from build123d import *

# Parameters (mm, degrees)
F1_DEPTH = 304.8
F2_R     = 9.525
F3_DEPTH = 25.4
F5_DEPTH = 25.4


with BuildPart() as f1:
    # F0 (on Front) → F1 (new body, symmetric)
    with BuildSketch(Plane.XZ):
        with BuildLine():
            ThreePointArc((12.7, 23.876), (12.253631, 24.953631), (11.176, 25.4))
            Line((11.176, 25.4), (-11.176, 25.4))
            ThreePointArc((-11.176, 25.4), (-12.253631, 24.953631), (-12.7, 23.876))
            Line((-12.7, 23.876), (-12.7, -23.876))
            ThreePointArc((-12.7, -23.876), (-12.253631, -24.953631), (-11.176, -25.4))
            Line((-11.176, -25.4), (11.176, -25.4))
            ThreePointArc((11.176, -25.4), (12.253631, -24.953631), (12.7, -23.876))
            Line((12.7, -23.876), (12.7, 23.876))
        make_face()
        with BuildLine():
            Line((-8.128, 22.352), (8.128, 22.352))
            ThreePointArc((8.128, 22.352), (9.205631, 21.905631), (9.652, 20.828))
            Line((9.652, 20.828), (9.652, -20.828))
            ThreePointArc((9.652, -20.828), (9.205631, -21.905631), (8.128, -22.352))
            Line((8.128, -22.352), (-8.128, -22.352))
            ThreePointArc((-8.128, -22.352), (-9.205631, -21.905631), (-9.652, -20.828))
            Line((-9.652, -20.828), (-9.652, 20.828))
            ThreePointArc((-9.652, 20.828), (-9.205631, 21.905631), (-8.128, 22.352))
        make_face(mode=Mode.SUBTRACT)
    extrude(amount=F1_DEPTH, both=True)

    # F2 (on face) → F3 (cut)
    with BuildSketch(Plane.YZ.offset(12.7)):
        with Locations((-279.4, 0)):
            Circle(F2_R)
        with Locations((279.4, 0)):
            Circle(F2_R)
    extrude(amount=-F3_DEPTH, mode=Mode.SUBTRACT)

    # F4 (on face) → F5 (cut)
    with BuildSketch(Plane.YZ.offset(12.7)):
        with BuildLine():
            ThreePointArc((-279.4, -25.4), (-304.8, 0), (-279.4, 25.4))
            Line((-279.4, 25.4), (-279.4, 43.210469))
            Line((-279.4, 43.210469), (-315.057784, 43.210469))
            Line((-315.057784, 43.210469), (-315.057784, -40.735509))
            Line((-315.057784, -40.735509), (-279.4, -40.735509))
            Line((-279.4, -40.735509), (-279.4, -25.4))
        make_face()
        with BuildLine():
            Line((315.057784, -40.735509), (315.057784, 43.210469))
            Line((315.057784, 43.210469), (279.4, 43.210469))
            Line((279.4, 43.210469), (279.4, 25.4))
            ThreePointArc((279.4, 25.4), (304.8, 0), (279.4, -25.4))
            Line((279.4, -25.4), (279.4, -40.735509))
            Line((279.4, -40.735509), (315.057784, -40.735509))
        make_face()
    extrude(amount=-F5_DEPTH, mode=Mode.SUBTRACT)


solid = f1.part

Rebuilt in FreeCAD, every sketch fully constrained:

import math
import FreeCAD as App
import Part
import Sketcher
Q = App.Units.Quantity

doc = App.newDocument("Part")
body = doc.addObject("PartDesign::Body", "Body")

sketch1 = doc.addObject("Sketcher::SketchObject", "Sketch")
body.addObject(sketch1)
sketch1.AttachmentSupport = (doc.XZ_Plane, [""])
sketch1.MapMode = "FlatFace"
sketch1.addGeometry(Part.ArcOfCircle(Part.Circle(App.Vector(11.2, 23.9, 0), App.Vector(0, 0, 1), 1.5), math.radians(0), math.radians(90)), False)
sketch1.addGeometry(Part.LineSegment(App.Vector(11.2, 25.4, 0), App.Vector(-11.2, 25.4, 0)), False)
sketch1.addGeometry(Part.ArcOfCircle(Part.Circle(App.Vector(-11.2, 23.9, 0), App.Vector(0, 0, 1), 1.5), math.radians(90), math.radians(180)), False)
sketch1.addGeometry(Part.LineSegment(App.Vector(-12.7, 23.9, 0), App.Vector(-12.7, -23.9, 0)), False)
sketch1.addGeometry(Part.ArcOfCircle(Part.Circle(App.Vector(-11.2, -23.9, 0), App.Vector(0, 0, 1), 1.5), math.radians(180), math.radians(270)), False)
sketch1.addGeometry(Part.LineSegment(App.Vector(-11.2, -25.4, 0), App.Vector(11.2, -25.4, 0)), False)
sketch1.addGeometry(Part.ArcOfCircle(Part.Circle(App.Vector(11.2, -23.9, 0), App.Vector(0, 0, 1), 1.5), math.radians(-90), math.radians(0)), False)
sketch1.addGeometry(Part.LineSegment(App.Vector(12.7, -23.9, 0), App.Vector(12.7, 23.9, 0)), False)
sketch1.addGeometry(Part.ArcOfCircle(Part.Circle(App.Vector(-8.1, 20.8, 0), App.Vector(0, 0, 1), 1.5), math.radians(90), math.radians(180)), False)
sketch1.addGeometry(Part.LineSegment(App.Vector(-8.1, 22.4, 0), App.Vector(8.1, 22.4, 0)), False)
sketch1.addGeometry(Part.ArcOfCircle(Part.Circle(App.Vector(8.1, 20.8, 0), App.Vector(0, 0, 1), 1.5), math.radians(0), math.radians(90)), False)
sketch1.addGeometry(Part.LineSegment(App.Vector(9.7, 20.8, 0), App.Vector(9.7, -20.8, 0)), False)
sketch1.addGeometry(Part.ArcOfCircle(Part.Circle(App.Vector(8.1, -20.8, 0), App.Vector(0, 0, 1), 1.5), math.radians(-90), math.radians(0)), False)
sketch1.addGeometry(Part.LineSegment(App.Vector(8.1, -22.4, 0), App.Vector(-8.1, -22.4, 0)), False)
sketch1.addGeometry(Part.ArcOfCircle(Part.Circle(App.Vector(-8.1, -20.8, 0), App.Vector(0, 0, 1), 1.5), math.radians(180), math.radians(270)), False)
sketch1.addGeometry(Part.LineSegment(App.Vector(-9.7, -20.8, 0), App.Vector(-9.7, 20.8, 0)), False)
sketch1.addConstraint(Sketcher.Constraint("Tangent", 0, 2, 1, 1))
sketch1.addConstraint(Sketcher.Constraint("Tangent", 1, 2, 2, 1))
sketch1.addConstraint(Sketcher.Constraint("Tangent", 2, 2, 3, 1))
sketch1.addConstraint(Sketcher.Constraint("Tangent", 3, 2, 4, 1))
sketch1.addConstraint(Sketcher.Constraint("Tangent", 4, 2, 5, 1))
sketch1.addConstraint(Sketcher.Constraint("Tangent", 5, 2, 6, 1))
sketch1.addConstraint(Sketcher.Constraint("Tangent", 6, 2, 7, 1))
sketch1.addConstraint(Sketcher.Constraint("Tangent", 7, 2, 0, 1))
sketch1.addConstraint(Sketcher.Constraint("Tangent", 8, 1, 9, 1))
sketch1.addConstraint(Sketcher.Constraint("Tangent", 9, 2, 10, 2))
sketch1.addConstraint(Sketcher.Constraint("Tangent", 10, 1, 11, 1))
sketch1.addConstraint(Sketcher.Constraint("Tangent", 11, 2, 12, 2))
sketch1.addConstraint(Sketcher.Constraint("Tangent", 12, 1, 13, 1))
sketch1.addConstraint(Sketcher.Constraint("Tangent", 13, 2, 14, 2))
sketch1.addConstraint(Sketcher.Constraint("Tangent", 14, 1, 15, 1))
sketch1.addConstraint(Sketcher.Constraint("Tangent", 15, 2, 8, 2))
sketch1.addConstraint(Sketcher.Constraint("Horizontal", 1))
sketch1.addConstraint(Sketcher.Constraint("Vertical", 3))
sketch1.addConstraint(Sketcher.Constraint("Horizontal", 5))
sketch1.addConstraint(Sketcher.Constraint("Vertical", 7))
sketch1.addConstraint(Sketcher.Constraint("Horizontal", 9))
sketch1.addConstraint(Sketcher.Constraint("Vertical", 11))
sketch1.addConstraint(Sketcher.Constraint("Horizontal", 13))
sketch1.addConstraint(Sketcher.Constraint("Vertical", 15))
sketch1.addConstraint(Sketcher.Constraint("Equal", 0, 2))
sketch1.addConstraint(Sketcher.Constraint("Equal", 2, 4))
sketch1.addConstraint(Sketcher.Constraint("Equal", 4, 6))
sketch1.addConstraint(Sketcher.Constraint("Equal", 6, 8))
sketch1.addConstraint(Sketcher.Constraint("Equal", 8, 10))
sketch1.addConstraint(Sketcher.Constraint("Equal", 10, 12))
sketch1.addConstraint(Sketcher.Constraint("Equal", 12, 14))
sketch1.addConstraint(Sketcher.Constraint("Symmetric", 0, 3, 4, 3, -1, 1))
sketch1.addConstraint(Sketcher.Constraint("Symmetric", 8, 3, 12, 3, -1, 1))
sketch1.addConstraint(Sketcher.Constraint("Radius", 0, Q("0.06 in")))
sketch1.addConstraint(Sketcher.Constraint("DistanceY", -1, 1, 0, 2, Q("1 in")))
sketch1.addConstraint(Sketcher.Constraint("DistanceX", 1, 2, 1, 1, Q("0.88 in")))
sketch1.addConstraint(Sketcher.Constraint("DistanceX", 9, 1, 9, 2, Q("0.64 in")))
sketch1.addConstraint(Sketcher.Constraint("DistanceY", 11, 2, 11, 1, Q("1.64 in")))
pad1 = doc.addObject("PartDesign::Pad", "Pad")
body.addObject(pad1)
pad1.Profile = sketch1
pad1.Length = Q("24 in")
pad1.Midplane = True

sketch2 = doc.addObject("Sketcher::SketchObject", "Sketch001")
body.addObject(sketch2)
sketch2.AttachmentSupport = (doc.YZ_Plane, [""])
sketch2.MapMode = "FlatFace"
sketch2.AttachmentOffset = App.Placement(App.Vector(0, 0, 0.5 * 25.4), App.Rotation())
sketch2.addGeometry(Part.Circle(App.Vector(-279, 0, 0), App.Vector(0, 0, 1), 10), False)
sketch2.addGeometry(Part.Circle(App.Vector(279, 0, 0), App.Vector(0, 0, 1), 10), False)
sketch2.addConstraint(Sketcher.Constraint("Equal", 0, 1))
sketch2.addConstraint(Sketcher.Constraint("Symmetric", 0, 3, 1, 3, -1, 1))
sketch2.addConstraint(Sketcher.Constraint("PointOnObject", 0, 3, -1))
sketch2.addConstraint(Sketcher.Constraint("Diameter", 0, Q("0.75 in")))
sketch2.addConstraint(Sketcher.Constraint("DistanceX", 0, 3, -1, 1, Q("11 in")))
pocket1 = doc.addObject("PartDesign::Pocket", "Pocket")
body.addObject(pocket1)
pocket1.Profile = sketch2
pocket1.Length = Q("1 in")

sketch3 = doc.addObject("Sketcher::SketchObject", "Sketch002")
body.addObject(sketch3)
sketch3.AttachmentSupport = (doc.YZ_Plane, [""])
sketch3.MapMode = "FlatFace"
sketch3.AttachmentOffset = App.Placement(App.Vector(0, 0, 0.5 * 25.4), App.Rotation())
sketch3.addGeometry(Part.ArcOfCircle(Part.Circle(App.Vector(-279, 0, 0), App.Vector(0, 0, 1), 25), math.radians(90), math.radians(270)), False)
sketch3.addGeometry(Part.LineSegment(App.Vector(-279, 25, 0), App.Vector(-279, 43, 0)), False)
sketch3.addGeometry(Part.LineSegment(App.Vector(-279, 43, 0), App.Vector(-315, 43, 0)), False)
sketch3.addGeometry(Part.LineSegment(App.Vector(-315, 43, 0), App.Vector(-315, -41, 0)), False)
sketch3.addGeometry(Part.LineSegment(App.Vector(-315, -41, 0), App.Vector(-279, -41, 0)), False)
sketch3.addGeometry(Part.LineSegment(App.Vector(-279, -41, 0), App.Vector(-279, -25, 0)), False)
sketch3.addGeometry(Part.LineSegment(App.Vector(315, -41, 0), App.Vector(315, 43, 0)), False)
sketch3.addGeometry(Part.LineSegment(App.Vector(315, 43, 0), App.Vector(279, 43, 0)), False)
sketch3.addGeometry(Part.LineSegment(App.Vector(279, 43, 0), App.Vector(279, 25, 0)), False)
sketch3.addGeometry(Part.ArcOfCircle(Part.Circle(App.Vector(279, 0, 0), App.Vector(0, 0, 1), 25), math.radians(-90), math.radians(90)), False)
sketch3.addGeometry(Part.LineSegment(App.Vector(279, -25, 0), App.Vector(279, -41, 0)), False)
sketch3.addGeometry(Part.LineSegment(App.Vector(279, -41, 0), App.Vector(315, -41, 0)), False)
sketch3.addConstraint(Sketcher.Constraint("Coincident", 0, 1, 1, 1))
sketch3.addConstraint(Sketcher.Constraint("Coincident", 1, 2, 2, 1))
sketch3.addConstraint(Sketcher.Constraint("Coincident", 2, 2, 3, 1))
sketch3.addConstraint(Sketcher.Constraint("Coincident", 3, 2, 4, 1))
sketch3.addConstraint(Sketcher.Constraint("Coincident", 4, 2, 5, 1))
sketch3.addConstraint(Sketcher.Constraint("Coincident", 5, 2, 0, 2))
sketch3.addConstraint(Sketcher.Constraint("Coincident", 6, 2, 7, 1))
sketch3.addConstraint(Sketcher.Constraint("Coincident", 7, 2, 8, 1))
sketch3.addConstraint(Sketcher.Constraint("Coincident", 8, 2, 9, 2))
sketch3.addConstraint(Sketcher.Constraint("Coincident", 9, 1, 10, 1))
sketch3.addConstraint(Sketcher.Constraint("Coincident", 10, 2, 11, 1))
sketch3.addConstraint(Sketcher.Constraint("Coincident", 11, 2, 6, 1))
sketch3.addConstraint(Sketcher.Constraint("Vertical", 1))
sketch3.addConstraint(Sketcher.Constraint("Horizontal", 2))
sketch3.addConstraint(Sketcher.Constraint("Vertical", 3))
sketch3.addConstraint(Sketcher.Constraint("Horizontal", 4))
sketch3.addConstraint(Sketcher.Constraint("Vertical", 5))
sketch3.addConstraint(Sketcher.Constraint("Vertical", 6))
sketch3.addConstraint(Sketcher.Constraint("Horizontal", 7))
sketch3.addConstraint(Sketcher.Constraint("Vertical", 8))
sketch3.addConstraint(Sketcher.Constraint("Vertical", 10))
sketch3.addConstraint(Sketcher.Constraint("Horizontal", 11))
sketch3.addConstraint(Sketcher.Constraint("Equal", 0, 9))
sketch3.addConstraint(Sketcher.Constraint("Symmetric", 0, 3, 9, 3, -1, 1))
sketch3.addConstraint(Sketcher.Constraint("Symmetric", 2, 2, 6, 2, -2))
sketch3.addConstraint(Sketcher.Constraint("Symmetric", 0, 1, 8, 2, -2))
sketch3.addConstraint(Sketcher.Constraint("Symmetric", 4, 2, 10, 2, -2))
sketch3.addConstraint(Sketcher.Constraint("Vertical", 1, 2, 4, 2))
sketch3.addConstraint(Sketcher.Constraint("Vertical", 9, 3, 7, 2))
sketch3.addConstraint(Sketcher.Constraint("Radius", 0, Q("1 in")))
sketch3.addConstraint(Sketcher.Constraint("DistanceX", 0, 3, -1, 1, Q("11 in")))
sketch3.addConstraint(Sketcher.Constraint("DistanceY", 1, 1, 1, 2, 17.810469))
sketch3.addConstraint(Sketcher.Constraint("DistanceY", 5, 1, 5, 2, 15.335509))
sketch3.addConstraint(Sketcher.Constraint("DistanceX", 2, 2, 2, 1, 35.657784))
pocket2 = doc.addObject("PartDesign::Pocket", "Pocket001")
body.addObject(pocket2)
pocket2.Profile = sketch3
pocket2.Length = Q("1 in")

doc.recompute()
